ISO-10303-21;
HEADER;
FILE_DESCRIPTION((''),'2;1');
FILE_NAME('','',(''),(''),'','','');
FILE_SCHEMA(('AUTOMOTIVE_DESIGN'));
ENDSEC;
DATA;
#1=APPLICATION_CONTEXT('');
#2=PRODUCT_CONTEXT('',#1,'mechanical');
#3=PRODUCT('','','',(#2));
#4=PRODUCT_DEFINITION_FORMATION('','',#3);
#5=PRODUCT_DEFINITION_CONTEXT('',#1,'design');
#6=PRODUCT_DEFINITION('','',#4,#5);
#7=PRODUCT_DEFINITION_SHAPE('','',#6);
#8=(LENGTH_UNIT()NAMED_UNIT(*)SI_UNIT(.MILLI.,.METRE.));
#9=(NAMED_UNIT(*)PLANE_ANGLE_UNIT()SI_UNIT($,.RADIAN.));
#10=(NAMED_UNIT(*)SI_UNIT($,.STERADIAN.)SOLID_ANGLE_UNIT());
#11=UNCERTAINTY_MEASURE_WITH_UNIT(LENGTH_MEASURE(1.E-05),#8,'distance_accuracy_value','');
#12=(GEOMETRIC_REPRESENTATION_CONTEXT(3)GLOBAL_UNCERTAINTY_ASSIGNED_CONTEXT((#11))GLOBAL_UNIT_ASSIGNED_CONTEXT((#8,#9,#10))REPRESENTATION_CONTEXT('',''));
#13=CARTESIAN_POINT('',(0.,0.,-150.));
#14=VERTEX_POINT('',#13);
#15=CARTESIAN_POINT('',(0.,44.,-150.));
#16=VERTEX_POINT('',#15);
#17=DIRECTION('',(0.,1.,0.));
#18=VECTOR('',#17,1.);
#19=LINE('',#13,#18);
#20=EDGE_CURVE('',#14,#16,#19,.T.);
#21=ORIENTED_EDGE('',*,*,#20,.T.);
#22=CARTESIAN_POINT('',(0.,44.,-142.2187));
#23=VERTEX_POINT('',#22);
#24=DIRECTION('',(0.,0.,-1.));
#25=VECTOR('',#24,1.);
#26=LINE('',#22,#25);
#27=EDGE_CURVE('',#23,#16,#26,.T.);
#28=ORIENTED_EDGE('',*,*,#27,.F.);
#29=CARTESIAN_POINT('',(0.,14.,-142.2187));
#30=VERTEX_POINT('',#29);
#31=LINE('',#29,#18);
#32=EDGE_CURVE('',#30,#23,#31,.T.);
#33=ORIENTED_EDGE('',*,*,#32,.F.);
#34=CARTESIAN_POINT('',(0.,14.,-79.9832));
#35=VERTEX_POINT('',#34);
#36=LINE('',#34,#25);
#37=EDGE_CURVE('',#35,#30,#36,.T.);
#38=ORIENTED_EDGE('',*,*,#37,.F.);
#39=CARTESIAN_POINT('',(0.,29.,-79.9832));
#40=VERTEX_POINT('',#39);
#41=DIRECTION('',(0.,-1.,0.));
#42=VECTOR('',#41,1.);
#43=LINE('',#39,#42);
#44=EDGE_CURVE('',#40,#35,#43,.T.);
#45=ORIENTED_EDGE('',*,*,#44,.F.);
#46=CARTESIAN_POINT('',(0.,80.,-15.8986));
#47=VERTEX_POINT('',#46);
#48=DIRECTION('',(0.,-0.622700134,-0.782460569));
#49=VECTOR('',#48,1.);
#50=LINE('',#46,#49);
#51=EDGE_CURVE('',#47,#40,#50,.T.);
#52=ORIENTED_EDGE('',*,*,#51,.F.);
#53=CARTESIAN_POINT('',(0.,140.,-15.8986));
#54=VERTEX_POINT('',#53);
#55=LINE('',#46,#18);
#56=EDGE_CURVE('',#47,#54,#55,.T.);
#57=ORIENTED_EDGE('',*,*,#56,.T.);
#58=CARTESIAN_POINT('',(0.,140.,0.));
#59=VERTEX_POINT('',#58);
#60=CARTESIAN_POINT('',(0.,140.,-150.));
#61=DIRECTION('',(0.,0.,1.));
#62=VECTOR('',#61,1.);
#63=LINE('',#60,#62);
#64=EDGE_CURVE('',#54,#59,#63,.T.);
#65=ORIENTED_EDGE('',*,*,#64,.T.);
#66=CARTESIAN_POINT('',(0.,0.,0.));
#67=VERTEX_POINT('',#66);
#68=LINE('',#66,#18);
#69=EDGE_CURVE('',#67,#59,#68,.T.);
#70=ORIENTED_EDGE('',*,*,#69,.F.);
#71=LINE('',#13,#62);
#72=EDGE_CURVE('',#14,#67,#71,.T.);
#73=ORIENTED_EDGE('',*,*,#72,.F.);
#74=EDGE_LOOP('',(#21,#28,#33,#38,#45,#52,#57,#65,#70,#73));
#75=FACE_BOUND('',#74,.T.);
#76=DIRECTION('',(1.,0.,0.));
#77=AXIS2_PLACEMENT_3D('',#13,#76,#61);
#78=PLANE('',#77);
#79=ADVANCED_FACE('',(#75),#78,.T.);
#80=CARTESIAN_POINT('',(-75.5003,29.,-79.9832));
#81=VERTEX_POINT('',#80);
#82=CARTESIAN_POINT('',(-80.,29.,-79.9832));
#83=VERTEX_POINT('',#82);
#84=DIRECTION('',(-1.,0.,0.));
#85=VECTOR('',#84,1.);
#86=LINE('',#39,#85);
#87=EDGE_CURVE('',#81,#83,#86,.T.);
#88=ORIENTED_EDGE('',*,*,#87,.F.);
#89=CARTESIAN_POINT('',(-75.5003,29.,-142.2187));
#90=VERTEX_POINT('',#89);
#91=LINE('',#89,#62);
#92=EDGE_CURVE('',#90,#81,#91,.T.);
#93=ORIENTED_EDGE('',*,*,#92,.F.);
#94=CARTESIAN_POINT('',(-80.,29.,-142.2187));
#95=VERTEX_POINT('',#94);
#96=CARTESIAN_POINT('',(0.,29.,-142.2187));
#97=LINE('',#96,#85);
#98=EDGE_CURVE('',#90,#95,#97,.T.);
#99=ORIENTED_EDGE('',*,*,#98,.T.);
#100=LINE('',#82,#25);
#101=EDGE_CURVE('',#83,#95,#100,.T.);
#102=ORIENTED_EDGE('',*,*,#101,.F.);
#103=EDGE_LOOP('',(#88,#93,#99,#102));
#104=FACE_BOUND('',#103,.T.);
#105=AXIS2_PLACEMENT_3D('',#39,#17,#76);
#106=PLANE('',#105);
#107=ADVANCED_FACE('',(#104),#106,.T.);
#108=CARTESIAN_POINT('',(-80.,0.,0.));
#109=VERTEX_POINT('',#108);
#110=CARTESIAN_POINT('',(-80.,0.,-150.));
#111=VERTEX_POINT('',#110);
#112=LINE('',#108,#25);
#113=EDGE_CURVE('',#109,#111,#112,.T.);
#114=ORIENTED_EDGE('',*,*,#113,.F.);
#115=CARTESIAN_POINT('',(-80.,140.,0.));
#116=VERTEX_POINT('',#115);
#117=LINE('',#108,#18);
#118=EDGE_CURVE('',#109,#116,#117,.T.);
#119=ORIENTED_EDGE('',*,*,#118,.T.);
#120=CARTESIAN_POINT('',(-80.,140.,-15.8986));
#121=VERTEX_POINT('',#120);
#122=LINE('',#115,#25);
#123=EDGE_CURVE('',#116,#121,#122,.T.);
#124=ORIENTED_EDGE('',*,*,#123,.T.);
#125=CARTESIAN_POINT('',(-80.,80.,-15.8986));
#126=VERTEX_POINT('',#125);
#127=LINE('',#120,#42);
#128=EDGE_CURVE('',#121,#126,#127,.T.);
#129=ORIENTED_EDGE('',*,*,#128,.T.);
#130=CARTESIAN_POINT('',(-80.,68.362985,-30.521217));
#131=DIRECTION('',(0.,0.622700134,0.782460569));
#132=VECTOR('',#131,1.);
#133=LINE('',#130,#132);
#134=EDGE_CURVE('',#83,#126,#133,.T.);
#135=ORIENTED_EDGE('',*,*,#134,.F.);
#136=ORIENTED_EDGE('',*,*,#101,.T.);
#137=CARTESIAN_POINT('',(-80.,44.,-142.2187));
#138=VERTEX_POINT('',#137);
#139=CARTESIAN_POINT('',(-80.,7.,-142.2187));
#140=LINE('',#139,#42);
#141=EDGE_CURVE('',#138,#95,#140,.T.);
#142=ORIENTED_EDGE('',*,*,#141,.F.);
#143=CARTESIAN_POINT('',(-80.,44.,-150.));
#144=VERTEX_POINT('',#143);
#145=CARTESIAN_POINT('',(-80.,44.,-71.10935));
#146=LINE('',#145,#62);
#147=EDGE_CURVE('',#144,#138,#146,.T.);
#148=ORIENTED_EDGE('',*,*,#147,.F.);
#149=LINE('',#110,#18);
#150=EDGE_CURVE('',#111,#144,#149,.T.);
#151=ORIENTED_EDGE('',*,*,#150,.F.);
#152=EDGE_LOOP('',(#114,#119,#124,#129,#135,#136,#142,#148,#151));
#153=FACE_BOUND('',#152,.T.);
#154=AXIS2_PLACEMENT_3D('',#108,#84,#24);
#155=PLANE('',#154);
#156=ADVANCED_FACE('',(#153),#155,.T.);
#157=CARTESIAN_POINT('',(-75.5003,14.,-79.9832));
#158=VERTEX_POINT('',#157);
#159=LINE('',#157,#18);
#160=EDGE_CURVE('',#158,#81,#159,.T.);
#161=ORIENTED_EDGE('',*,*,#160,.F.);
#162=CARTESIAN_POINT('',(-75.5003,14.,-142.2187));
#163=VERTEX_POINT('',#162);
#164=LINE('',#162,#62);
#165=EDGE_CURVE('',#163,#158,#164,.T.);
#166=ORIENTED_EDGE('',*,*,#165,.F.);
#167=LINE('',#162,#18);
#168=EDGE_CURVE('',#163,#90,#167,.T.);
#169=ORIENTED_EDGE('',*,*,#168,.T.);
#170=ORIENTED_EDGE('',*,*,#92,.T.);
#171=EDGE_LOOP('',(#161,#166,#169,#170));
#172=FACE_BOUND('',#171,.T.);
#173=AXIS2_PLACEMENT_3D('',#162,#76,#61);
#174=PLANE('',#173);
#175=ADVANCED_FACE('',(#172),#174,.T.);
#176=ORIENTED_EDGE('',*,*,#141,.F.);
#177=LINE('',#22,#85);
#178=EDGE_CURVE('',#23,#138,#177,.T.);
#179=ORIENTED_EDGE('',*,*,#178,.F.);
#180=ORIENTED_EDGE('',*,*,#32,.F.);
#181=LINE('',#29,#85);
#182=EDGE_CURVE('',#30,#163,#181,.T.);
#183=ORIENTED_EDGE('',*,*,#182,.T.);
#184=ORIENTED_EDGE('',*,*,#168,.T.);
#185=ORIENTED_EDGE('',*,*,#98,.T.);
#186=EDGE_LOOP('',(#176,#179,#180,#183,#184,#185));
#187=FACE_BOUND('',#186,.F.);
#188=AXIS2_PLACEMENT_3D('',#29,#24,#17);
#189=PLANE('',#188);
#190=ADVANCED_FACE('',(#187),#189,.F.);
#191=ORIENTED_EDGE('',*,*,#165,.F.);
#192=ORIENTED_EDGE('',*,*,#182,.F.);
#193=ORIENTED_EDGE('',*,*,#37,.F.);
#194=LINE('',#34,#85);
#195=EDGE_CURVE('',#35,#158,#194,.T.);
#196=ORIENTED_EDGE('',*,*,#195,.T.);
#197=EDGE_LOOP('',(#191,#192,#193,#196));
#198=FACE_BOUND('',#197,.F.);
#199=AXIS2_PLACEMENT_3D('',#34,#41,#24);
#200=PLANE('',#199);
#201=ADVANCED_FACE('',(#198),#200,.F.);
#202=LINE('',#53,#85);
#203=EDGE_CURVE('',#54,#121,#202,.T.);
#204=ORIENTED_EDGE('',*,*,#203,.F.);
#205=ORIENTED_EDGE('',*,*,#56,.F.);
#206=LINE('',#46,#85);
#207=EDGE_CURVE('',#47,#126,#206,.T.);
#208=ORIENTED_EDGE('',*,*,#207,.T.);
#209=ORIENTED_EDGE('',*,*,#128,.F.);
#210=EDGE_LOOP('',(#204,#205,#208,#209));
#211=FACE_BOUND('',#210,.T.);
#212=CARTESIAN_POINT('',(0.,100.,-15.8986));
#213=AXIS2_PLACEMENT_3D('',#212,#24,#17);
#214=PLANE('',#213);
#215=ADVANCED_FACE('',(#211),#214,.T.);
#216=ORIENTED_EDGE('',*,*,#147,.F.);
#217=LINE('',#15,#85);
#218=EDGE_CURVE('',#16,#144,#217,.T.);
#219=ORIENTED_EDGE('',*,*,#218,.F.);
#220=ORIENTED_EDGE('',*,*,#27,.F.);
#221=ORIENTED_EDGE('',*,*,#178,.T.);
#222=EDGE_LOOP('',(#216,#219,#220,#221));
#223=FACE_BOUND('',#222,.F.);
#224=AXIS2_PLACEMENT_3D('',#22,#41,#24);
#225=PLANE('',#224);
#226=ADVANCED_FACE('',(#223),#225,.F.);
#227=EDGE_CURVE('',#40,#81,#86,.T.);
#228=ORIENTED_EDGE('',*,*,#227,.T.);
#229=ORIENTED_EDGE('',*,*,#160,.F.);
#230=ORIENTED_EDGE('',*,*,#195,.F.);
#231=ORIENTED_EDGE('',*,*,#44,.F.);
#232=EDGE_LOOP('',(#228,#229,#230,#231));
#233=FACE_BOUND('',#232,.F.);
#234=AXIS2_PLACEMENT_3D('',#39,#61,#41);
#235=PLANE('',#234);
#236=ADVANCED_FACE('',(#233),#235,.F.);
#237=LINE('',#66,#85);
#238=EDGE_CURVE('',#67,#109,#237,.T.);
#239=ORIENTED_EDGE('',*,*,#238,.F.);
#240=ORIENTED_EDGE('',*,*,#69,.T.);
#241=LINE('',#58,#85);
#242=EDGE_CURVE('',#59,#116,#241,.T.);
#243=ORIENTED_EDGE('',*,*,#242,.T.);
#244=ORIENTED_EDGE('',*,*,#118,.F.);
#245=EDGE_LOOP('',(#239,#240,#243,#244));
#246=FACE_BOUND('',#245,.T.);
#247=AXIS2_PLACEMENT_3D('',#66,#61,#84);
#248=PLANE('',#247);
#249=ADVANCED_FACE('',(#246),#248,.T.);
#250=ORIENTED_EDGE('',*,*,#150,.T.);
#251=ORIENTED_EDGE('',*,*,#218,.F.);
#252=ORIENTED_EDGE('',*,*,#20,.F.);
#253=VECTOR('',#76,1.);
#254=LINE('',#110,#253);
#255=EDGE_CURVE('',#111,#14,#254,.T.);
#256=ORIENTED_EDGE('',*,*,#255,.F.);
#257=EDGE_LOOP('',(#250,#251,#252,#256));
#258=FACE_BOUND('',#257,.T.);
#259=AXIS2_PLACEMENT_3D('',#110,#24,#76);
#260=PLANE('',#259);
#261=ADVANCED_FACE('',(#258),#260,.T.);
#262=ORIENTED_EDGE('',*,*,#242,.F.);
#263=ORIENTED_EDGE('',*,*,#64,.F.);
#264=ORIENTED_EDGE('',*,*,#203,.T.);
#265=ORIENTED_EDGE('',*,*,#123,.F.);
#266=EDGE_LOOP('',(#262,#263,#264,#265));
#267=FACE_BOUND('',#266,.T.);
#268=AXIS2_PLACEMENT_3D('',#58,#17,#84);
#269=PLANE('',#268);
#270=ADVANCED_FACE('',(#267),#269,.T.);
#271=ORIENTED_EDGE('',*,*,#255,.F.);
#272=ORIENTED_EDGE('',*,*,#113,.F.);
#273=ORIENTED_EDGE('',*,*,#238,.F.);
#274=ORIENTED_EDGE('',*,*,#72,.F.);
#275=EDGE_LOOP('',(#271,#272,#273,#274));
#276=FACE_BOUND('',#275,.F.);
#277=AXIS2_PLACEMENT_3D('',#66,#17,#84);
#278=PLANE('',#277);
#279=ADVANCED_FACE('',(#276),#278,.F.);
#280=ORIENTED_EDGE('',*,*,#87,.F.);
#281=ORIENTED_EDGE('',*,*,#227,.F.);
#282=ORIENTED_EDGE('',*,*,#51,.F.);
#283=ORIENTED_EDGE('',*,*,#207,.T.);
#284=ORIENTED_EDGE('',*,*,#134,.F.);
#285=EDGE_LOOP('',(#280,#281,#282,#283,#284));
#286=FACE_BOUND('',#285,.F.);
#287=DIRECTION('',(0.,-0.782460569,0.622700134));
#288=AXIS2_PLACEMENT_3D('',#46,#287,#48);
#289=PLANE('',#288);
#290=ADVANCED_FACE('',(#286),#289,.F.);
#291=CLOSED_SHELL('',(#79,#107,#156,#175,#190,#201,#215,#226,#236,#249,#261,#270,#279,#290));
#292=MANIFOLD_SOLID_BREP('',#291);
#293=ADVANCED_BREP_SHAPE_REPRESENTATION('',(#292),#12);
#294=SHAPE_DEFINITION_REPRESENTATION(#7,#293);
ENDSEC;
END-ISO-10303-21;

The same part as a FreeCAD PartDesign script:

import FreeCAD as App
import Part
import Sketcher
from FreeCAD import Vector

doc = App.newDocument("Part")
body = doc.addObject("PartDesign::Body", "Body")

# Sketch on XZ plane
sketch1 = body.newObject("Sketcher::SketchObject", "Sketch")
sketch1.AttachmentSupport = (doc.getObject("XZ_Plane"), [""])
sketch1.MapMode = "FlatFace"
sketch1.addGeometry([
    Part.LineSegment(Vector(-80, 0, 0), Vector(0, 0, 0)),
    Part.LineSegment(Vector(0, 0, 0), Vector(0, -150, 0)),
    Part.LineSegment(Vector(0, -150, 0), Vector(-80, -150, 0)),
    Part.LineSegment(Vector(-80, -150, 0), Vector(-80, 0, 0)),
], False)
sketch1.addConstraint([
    Sketcher.Constraint("Coincident", 0, 2, 1, 1),
    Sketcher.Constraint("Coincident", 1, 2, 2, 1),
    Sketcher.Constraint("Coincident", 2, 2, 3, 1),
    Sketcher.Constraint("Coincident", 3, 2, 0, 1),
    Sketcher.Constraint("Horizontal", 0),
    Sketcher.Constraint("Vertical", 1),
    Sketcher.Constraint("Horizontal", 2),
    Sketcher.Constraint("Vertical", 3),
    Sketcher.Constraint("Coincident", 0, 2, -1, 1),
    Sketcher.Constraint("DistanceX", 0, 1, 0, 2, 80.0),
    Sketcher.Constraint("DistanceY", 1, 2, 1, 1, 150.0),
])
pad1 = body.newObject("PartDesign::Pad", "Pad")
pad1.Profile = sketch1
pad1.Length = 140
pad1.Reversed = True

# Sketch on YZ plane
sketch2 = body.newObject("Sketcher::SketchObject", "Sketch001")
sketch2.AttachmentSupport = (doc.getObject("YZ_Plane"), [""])
sketch2.MapMode = "FlatFace"
sketch2.addGeometry([
    Part.LineSegment(Vector(44, -150, 0), Vector(140, -150, 0)),  # 0
    Part.LineSegment(Vector(140, -150, 0), Vector(140, -15.8986, 0)),  # 1
    Part.LineSegment(Vector(140, -15.8986, 0), Vector(80, -15.8986, 0)),  # 2
    Part.LineSegment(Vector(80, -15.8986, 0), Vector(29, -79.9832, 0)),  # 3
    Part.LineSegment(Vector(29, -79.9832, 0), Vector(14, -79.9832, 0)),  # 4
    Part.LineSegment(Vector(14, -79.9832, 0), Vector(14, -142.2187, 0)),  # 5
    Part.LineSegment(Vector(14, -142.2187, 0), Vector(44, -142.2187, 0)),  # 6
    Part.LineSegment(Vector(44, -142.2187, 0), Vector(44, -150, 0)),  # 7
], False)
sketch2.addConstraint([
    Sketcher.Constraint("Coincident", 0, 2, 1, 1),
    Sketcher.Constraint("Coincident", 1, 2, 2, 1),
    Sketcher.Constraint("Coincident", 2, 2, 3, 1),
    Sketcher.Constraint("Coincident", 3, 2, 4, 1),
    Sketcher.Constraint("Coincident", 4, 2, 5, 1),
    Sketcher.Constraint("Coincident", 5, 2, 6, 1),
    Sketcher.Constraint("Coincident", 6, 2, 7, 1),
    Sketcher.Constraint("Coincident", 7, 2, 0, 1),
    Sketcher.Constraint("Horizontal", 0),
    Sketcher.Constraint("Vertical", 1),
    Sketcher.Constraint("Horizontal", 2),
    Sketcher.Constraint("Horizontal", 4),
    Sketcher.Constraint("Vertical", 5),
    Sketcher.Constraint("Horizontal", 6),
    Sketcher.Constraint("Vertical", 7),
    Sketcher.Constraint("DistanceX", 4, 2, 4, 1, 15.0),
    Sketcher.Constraint("DistanceX", 6, 1, 6, 2, 30.0),
    Sketcher.Constraint("DistanceX", -1, 1, 4, 2, 14.0),
    Sketcher.Constraint("DistanceX", 0, 1, 0, 2, 96.0),
    Sketcher.Constraint("DistanceX", 2, 2, 2, 1, 60.0),
    Sketcher.Constraint("DistanceY", 0, 2, -1, 1, 150.0),
    Sketcher.Constraint("DistanceY", 5, 2, 2, 2, 126.32),
    Sketcher.Constraint("DistanceY", 1, 1, 1, 2, 134.1014),
    Sketcher.Constraint("DistanceY", 5, 2, 5, 1, 62.2355),
])
pocket1 = body.newObject("PartDesign::Pocket", "Pocket")
pocket1.Profile = sketch2
pocket1.Length = 140

# Sketch on XZ plane
sketch3 = body.newObject("Sketcher::SketchObject", "Sketch002")
sketch3.AttachmentSupport = (doc.getObject("XZ_Plane"), [""])
sketch3.MapMode = "FlatFace"
sketch3.AttachmentOffset = App.Placement(Vector(0, 0, -14), App.Rotation())
sketch3.addGeometry([
    Part.LineSegment(Vector(-75.5003, -79.9832, 0), Vector(-75.5003, -142.2187, 0)),
    Part.LineSegment(Vector(-75.5003, -142.2187, 0), Vector(-80, -142.2187, 0)),
    Part.LineSegment(Vector(-80, -142.2187, 0), Vector(-80, -79.9832, 0)),
    Part.LineSegment(Vector(-80, -79.9832, 0), Vector(-75.5003, -79.9832, 0)),
], False)
sketch3.addConstraint([
    Sketcher.Constraint("Coincident", 0, 2, 1, 1),
    Sketcher.Constraint("Coincident", 1, 2, 2, 1),
    Sketcher.Constraint("Coincident", 2, 2, 3, 1),
    Sketcher.Constraint("Coincident", 3, 2, 0, 1),
    Sketcher.Constraint("Vertical", 0),
    Sketcher.Constraint("Horizontal", 1),
    Sketcher.Constraint("Vertical", 2),
    Sketcher.Constraint("Horizontal", 3),
    Sketcher.Constraint("DistanceX", 1, 2, -1, 1, 80.0),
    Sketcher.Constraint("DistanceX", 1, 2, 1, 1, 4.4997),
    Sketcher.Constraint("DistanceY", 0, 2, 0, 1, 62.2355),
    Sketcher.Constraint("DistanceY", 0, 2, -1, 1, 142.2187),
])
pad2 = body.newObject("PartDesign::Pad", "Pad001")
pad2.Profile = sketch3
pad2.Length = 15
pad2.Reversed = True

doc.recompute()
